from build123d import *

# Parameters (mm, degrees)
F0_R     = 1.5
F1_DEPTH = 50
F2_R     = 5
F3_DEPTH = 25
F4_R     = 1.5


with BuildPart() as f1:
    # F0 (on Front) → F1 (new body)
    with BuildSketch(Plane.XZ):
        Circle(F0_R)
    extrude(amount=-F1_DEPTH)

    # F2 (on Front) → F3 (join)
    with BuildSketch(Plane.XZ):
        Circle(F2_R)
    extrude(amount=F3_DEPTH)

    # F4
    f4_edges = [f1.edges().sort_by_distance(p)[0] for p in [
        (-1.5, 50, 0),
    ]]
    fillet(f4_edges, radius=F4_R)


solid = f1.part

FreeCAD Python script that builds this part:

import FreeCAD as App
import Part
import Sketcher

V = App.Vector


def edges_at(feature, points):
    """Names of the edges that pass closest to the given points."""
    edges = feature.Shape.Edges
    near = lambda p: min(range(len(edges)), key=lambda i: edges[i].distToShape(Part.Vertex(*p))[0])
    return sorted({f"Edge{near(p) + 1}" for p in points})

doc = App.newDocument("Part")
body = doc.addObject("PartDesign::Body", "Body")

sketch1 = body.newObject("Sketcher::SketchObject", "Sketch")
sketch1.AttachmentSupport = (doc.getObject("XZ_Plane"), [""])
sketch1.MapMode = "FlatFace"
sketch1.addGeometry(Part.Circle(V(0, 0, 0), V(0, 0, 1), 1.5), False)
sketch1.addConstraint([
    Sketcher.Constraint("Coincident", 0, 3, -1, 1),
    Sketcher.Constraint("Diameter", 0, 3.0),
])
pad1 = body.newObject("PartDesign::Pad", "Pad")
pad1.Profile = sketch1
pad1.Length = 50
pad1.Reversed = True

sketch2 = body.newObject("Sketcher::SketchObject", "Sketch001")
sketch2.AttachmentSupport = (doc.getObject("XZ_Plane"), [""])
sketch2.MapMode = "FlatFace"
sketch2.addGeometry(Part.Circle(V(0, 0, 0), V(0, 0, 1), 5), False)
sketch2.addConstraint([
    Sketcher.Constraint("Coincident", 0, 3, -1, 1),
    Sketcher.Constraint("Diameter", 0, 10.0),
])
pad2 = body.newObject("PartDesign::Pad", "Pad001")
pad2.Profile = sketch2
pad2.Length = 25
doc.recompute()

fillet = body.newObject("PartDesign::Fillet", "Fillet")
fillet.Base = (pad2, edges_at(pad2, [(-1.5, 50, 0)]))
fillet.Radius = 1.5

doc.recompute()
